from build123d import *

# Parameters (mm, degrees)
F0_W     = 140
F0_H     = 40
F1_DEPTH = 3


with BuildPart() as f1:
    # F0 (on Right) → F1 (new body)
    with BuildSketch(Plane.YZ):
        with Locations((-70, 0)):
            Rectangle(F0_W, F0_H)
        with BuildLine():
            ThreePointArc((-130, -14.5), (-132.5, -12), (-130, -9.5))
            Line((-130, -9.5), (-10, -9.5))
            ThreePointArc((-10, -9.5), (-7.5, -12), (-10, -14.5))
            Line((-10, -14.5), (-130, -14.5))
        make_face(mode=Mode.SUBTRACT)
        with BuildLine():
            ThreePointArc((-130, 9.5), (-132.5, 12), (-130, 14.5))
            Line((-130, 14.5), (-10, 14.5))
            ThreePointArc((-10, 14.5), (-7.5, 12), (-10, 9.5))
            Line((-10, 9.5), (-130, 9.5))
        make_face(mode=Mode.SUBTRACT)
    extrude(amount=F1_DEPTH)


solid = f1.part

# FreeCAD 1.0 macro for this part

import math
import FreeCAD as App
import Part
import Sketcher

V = App.Vector
Q = App.Units.Quantity

doc = App.newDocument("Part")
body = doc.addObject("PartDesign::Body", "Body")

# Sketch on YZ plane
sketch1 = body.newObject("Sketcher::SketchObject", "Sketch")
sketch1.AttachmentSupport = (doc.getObject("YZ_Plane"), [""])
sketch1.MapMode = "FlatFace"
sketch1.addGeometry([
    Part.LineSegment(V(-140, 20, 0), V(-140, -20, 0)),  # 0
    Part.LineSegment(V(-140, -20, 0), V(0, -20, 0)),  # 1
    Part.LineSegment(V(0, -20, 0), V(0, 20, 0)),  # 2
    Part.LineSegment(V(0, 20, 0), V(-140, 20, 0)),  # 3
    Part.LineSegment(V(-10, -14.5, 0), V(-130, -14.5, 0)),  # 4
    Part.ArcOfCircle(Part.Circle(V(-130, -12, 0), V(0, 0, 1), 2.5), math.radians(90), math.radians(270)),  # 5
    Part.LineSegment(V(-130, -9.5, 0), V(-10, -9.5, 0)),  # 6
    Part.ArcOfCircle(Part.Circle(V(-10, -12, 0), V(0, 0, 1), 2.5), math.radians(-90), math.radians(90)),  # 7
    Part.LineSegment(V(-10, 9.5, 0), V(-130, 9.5, 0)),  # 8
    Part.ArcOfCircle(Part.Circle(V(-130, 12, 0), V(0, 0, 1), 2.5), math.radians(90), math.radians(270)),  # 9
    Part.LineSegment(V(-130, 14.5, 0), V(-10, 14.5, 0)),  # 10
    Part.ArcOfCircle(Part.Circle(V(-10, 12, 0), V(0, 0, 1), 2.5), math.radians(-90), math.radians(90)),  # 11
], False)
sketch1.addConstraint([
    Sketcher.Constraint("Coincident", 0, 2, 1, 1),
    Sketcher.Constraint("Coincident", 1, 2, 2, 1),
    Sketcher.Constraint("Coincident", 2, 2, 3, 1),
    Sketcher.Constraint("Coincident", 3, 2, 0, 1),
    Sketcher.Constraint("Tangent", 4, 2, 5, 2),
    Sketcher.Constraint("Tangent", 5, 1, 6, 1),
    Sketcher.Constraint("Tangent", 6, 2, 7, 2),
    Sketcher.Constraint("Tangent", 7, 1, 4, 1),
    Sketcher.Constraint("Tangent", 8, 2, 9, 2),
    Sketcher.Constraint("Tangent", 9, 1, 10, 1),
    Sketcher.Constraint("Tangent", 10, 2, 11, 2),
    Sketcher.Constraint("Tangent", 11, 1, 8, 1),
    Sketcher.Constraint("Vertical", 0),
    Sketcher.Constraint("Horizontal", 1),
    Sketcher.Constraint("Vertical", 2),
    Sketcher.Constraint("Horizontal", 3),
    Sketcher.Constraint("Horizontal", 4),
    Sketcher.Constraint("Horizontal", 6),
    Sketcher.Constraint("Horizontal", 8),
    Sketcher.Constraint("Horizontal", 10),
    Sketcher.Constraint("Equal", 7, 9),
    Sketcher.Constraint("Symmetric", 1, 2, 2, 2, -1, 1),
    Sketcher.Constraint("Symmetric", 5, 3, 9, 3, -1),
    Sketcher.Constraint("Vertical", 7, 3, 11, 3),
    Sketcher.Constraint("Radius", 5, Q("2.5 mm")),
    Sketcher.Constraint("DistanceX", 1, 1, 1, 2, Q("140 mm")),
    Sketcher.Constraint("DistanceX", 4, 2, 4, 1, Q("120 mm")),
    Sketcher.Constraint("DistanceY", 0, 2, 0, 1, Q("40 mm")),
    Sketcher.Constraint("DistanceX", 5, 3, -1, 1, Q("130 mm")),
    Sketcher.Constraint("DistanceY", 5, 3, -1, 1, Q("12 mm")),
])
pad1 = body.newObject("PartDesign::Pad", "Pad")
pad1.Profile = sketch1
pad1.Length = 3

doc.recompute()
